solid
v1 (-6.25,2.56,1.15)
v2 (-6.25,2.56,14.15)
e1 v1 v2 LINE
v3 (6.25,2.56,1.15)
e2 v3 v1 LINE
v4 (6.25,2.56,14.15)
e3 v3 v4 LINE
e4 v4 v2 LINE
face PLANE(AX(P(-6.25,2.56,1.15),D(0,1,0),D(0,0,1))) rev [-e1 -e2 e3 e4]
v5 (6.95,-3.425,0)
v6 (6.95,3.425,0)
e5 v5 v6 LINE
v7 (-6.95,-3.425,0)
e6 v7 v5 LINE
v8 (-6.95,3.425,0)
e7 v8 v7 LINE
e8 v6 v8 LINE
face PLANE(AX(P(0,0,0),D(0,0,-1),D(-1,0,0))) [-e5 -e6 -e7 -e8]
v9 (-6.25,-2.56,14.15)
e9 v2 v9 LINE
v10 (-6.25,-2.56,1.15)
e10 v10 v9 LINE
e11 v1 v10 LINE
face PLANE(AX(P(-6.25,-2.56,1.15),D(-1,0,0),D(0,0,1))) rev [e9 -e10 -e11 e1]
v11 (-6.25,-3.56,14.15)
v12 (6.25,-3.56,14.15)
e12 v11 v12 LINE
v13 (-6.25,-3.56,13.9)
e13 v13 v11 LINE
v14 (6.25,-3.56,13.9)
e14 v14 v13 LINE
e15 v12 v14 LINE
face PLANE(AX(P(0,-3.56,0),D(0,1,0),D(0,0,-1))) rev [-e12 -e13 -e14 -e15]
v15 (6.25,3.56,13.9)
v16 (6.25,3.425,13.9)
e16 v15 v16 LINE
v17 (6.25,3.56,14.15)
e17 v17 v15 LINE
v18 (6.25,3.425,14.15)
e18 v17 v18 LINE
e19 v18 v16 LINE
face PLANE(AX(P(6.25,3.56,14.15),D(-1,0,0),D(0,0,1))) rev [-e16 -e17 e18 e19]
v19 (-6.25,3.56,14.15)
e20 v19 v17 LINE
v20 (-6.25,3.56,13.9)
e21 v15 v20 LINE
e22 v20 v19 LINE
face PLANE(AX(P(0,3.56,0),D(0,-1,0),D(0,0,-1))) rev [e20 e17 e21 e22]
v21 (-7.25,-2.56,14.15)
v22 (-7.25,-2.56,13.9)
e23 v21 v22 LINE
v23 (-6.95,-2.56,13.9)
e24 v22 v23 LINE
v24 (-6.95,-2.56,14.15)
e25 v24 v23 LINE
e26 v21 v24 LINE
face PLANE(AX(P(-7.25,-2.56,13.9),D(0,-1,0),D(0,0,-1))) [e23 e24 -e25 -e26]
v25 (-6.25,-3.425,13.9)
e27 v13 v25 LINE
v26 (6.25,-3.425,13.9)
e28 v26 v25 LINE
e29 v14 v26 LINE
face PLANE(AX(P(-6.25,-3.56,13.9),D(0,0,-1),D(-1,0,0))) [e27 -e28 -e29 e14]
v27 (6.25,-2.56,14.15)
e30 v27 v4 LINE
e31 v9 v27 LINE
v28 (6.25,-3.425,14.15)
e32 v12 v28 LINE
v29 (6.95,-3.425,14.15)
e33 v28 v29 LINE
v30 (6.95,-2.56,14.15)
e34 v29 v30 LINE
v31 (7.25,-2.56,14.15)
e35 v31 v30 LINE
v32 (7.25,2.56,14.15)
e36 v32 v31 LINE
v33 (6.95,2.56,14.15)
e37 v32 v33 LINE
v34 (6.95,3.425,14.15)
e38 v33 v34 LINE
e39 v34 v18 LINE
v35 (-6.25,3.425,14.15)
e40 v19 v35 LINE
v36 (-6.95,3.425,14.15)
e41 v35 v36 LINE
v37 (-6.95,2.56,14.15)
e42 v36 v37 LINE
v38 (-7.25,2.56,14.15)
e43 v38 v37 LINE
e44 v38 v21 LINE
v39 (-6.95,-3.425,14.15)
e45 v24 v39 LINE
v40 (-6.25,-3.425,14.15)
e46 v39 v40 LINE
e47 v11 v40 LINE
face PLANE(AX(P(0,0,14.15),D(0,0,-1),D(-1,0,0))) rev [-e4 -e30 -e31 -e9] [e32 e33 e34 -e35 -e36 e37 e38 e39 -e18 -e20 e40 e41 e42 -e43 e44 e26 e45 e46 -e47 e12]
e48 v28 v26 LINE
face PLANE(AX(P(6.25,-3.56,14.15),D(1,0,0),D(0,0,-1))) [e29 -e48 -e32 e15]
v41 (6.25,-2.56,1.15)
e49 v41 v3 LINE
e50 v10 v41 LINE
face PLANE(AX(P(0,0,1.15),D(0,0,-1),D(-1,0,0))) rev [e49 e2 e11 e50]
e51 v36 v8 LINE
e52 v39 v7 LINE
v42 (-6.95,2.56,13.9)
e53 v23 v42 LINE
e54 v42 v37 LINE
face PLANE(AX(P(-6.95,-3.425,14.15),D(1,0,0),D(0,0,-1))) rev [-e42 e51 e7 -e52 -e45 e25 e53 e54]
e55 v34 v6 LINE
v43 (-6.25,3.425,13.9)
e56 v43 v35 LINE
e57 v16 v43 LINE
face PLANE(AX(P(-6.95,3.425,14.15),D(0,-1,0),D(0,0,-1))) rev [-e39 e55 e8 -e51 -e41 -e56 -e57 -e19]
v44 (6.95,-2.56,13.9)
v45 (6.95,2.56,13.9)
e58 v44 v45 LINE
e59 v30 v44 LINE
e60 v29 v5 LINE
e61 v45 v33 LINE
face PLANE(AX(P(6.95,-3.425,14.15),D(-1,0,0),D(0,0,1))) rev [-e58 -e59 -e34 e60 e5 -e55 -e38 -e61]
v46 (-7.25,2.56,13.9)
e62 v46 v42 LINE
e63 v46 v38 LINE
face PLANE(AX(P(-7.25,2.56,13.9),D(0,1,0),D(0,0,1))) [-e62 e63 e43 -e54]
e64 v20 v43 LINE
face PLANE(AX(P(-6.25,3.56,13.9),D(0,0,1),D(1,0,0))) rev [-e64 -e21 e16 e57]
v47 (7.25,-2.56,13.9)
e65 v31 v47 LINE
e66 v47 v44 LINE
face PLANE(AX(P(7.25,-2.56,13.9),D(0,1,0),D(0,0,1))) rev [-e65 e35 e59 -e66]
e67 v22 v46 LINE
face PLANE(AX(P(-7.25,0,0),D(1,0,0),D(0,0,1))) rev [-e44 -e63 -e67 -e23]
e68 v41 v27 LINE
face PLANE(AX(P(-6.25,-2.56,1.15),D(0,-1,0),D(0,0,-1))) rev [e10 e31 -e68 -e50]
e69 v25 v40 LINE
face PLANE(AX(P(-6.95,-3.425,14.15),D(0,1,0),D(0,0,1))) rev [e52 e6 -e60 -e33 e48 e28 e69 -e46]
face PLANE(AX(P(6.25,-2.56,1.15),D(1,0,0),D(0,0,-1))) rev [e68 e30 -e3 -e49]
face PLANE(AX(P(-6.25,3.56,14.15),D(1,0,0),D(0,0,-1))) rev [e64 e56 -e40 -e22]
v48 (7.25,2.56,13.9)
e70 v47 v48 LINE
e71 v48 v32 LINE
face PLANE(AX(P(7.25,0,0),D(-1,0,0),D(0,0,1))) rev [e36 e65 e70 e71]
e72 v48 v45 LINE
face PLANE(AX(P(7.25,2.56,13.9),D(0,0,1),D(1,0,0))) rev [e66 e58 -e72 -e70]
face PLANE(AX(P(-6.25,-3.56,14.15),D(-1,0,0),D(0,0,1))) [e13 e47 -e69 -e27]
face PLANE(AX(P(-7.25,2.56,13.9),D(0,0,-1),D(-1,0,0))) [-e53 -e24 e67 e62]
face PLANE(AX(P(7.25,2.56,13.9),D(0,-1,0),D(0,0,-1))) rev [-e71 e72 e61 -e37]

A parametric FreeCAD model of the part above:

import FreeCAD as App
import Part
import Sketcher


def add_polygon(sketch, points):
    """Adds a closed chain of lines whose ends are joined by coincident constraints."""
    first, n = sketch.GeometryCount, len(points)
    for a, b in zip(points, points[1:] + points[:1]):
        sketch.addGeometry(Part.LineSegment(App.Vector(*a, 0), App.Vector(*b, 0)), False)
    for i in range(n):
        sketch.addConstraint(Sketcher.Constraint("Coincident", first + i, 2, first + (i + 1) % n, 1))

doc = App.newDocument("Part")
body = doc.addObject("PartDesign::Body", "Body")

sketch1 = body.newObject("Sketcher::SketchObject", "Sketch")
sketch1.AttachmentSupport = (doc.getObject("XY_Plane"), [""])
sketch1.MapMode = "FlatFace"
add_polygon(sketch1, [(-6.95, 3.425), (-6.95, -3.425), (6.95, -3.425), (6.95, 3.425)])
sketch1.addConstraint(Sketcher.Constraint("Vertical", 0))
sketch1.addConstraint(Sketcher.Constraint("Horizontal", 1))
sketch1.addConstraint(Sketcher.Constraint("Vertical", 2))
sketch1.addConstraint(Sketcher.Constraint("Horizontal", 3))
sketch1.addConstraint(Sketcher.Constraint("Symmetric", 0, 2, 2, 2, -1, 1))
sketch1.addConstraint(Sketcher.Constraint("DistanceX", 1, 1, 1, 2, 13.9))
sketch1.addConstraint(Sketcher.Constraint("DistanceY", 0, 2, 0, 1, 6.85))
pad1 = body.newObject("PartDesign::Pad", "Pad")
pad1.Profile = sketch1
pad1.Length = 14.15

sketch2 = body.newObject("Sketcher::SketchObject", "Sketch001")
sketch2.AttachmentSupport = (doc.getObject("XY_Plane"), [""])
sketch2.MapMode = "FlatFace"
sketch2.AttachmentOffset = App.Placement(App.Vector(0, 0, 14.15), App.Rotation())
add_polygon(sketch2, [(-6.25, 2.56), (-6.25, -2.56), (6.25, -2.56), (6.25, 2.56)])
sketch2.addConstraint(Sketcher.Constraint("Vertical", 0))
sketch2.addConstraint(Sketcher.Constraint("Horizontal", 1))
sketch2.addConstraint(Sketcher.Constraint("Vertical", 2))
sketch2.addConstraint(Sketcher.Constraint("Horizontal", 3))
sketch2.addConstraint(Sketcher.Constraint("Symmetric", 0, 2, 2, 2, -1, 1))
sketch2.addConstraint(Sketcher.Constraint("DistanceX", 1, 1, 1, 2, 12.5))
sketch2.addConstraint(Sketcher.Constraint("DistanceY", 0, 2, 0, 1, 5.12))
pocket1 = body.newObject("PartDesign::Pocket", "Pocket")
pocket1.Profile = sketch2
pocket1.Length = 13

sketch3 = body.newObject("Sketcher::SketchObject", "Sketch002")
sketch3.AttachmentSupport = (doc.getObject("XZ_Plane"), [""])
sketch3.MapMode = "FlatFace"
sketch3.AttachmentOffset = App.Placement(App.Vector(0, 0, -3.425), App.Rotation())
add_polygon(sketch3, [(-6.25, 13.9), (-6.25, 14.15), (6.25, 14.15), (6.25, 13.9)])
sketch3.addConstraint(Sketcher.Constraint("Vertical", 0))
sketch3.addConstraint(Sketcher.Constraint("Horizontal", 1))
sketch3.addConstraint(Sketcher.Constraint("Vertical", 2))
sketch3.addConstraint(Sketcher.Constraint("Horizontal", 3))
sketch3.addConstraint(Sketcher.Constraint("DistanceX", 1, 1, 1, 2, 12.5))
sketch3.addConstraint(Sketcher.Constraint("DistanceY", 0, 1, 0, 2, 0.25))
sketch3.addConstraint(Sketcher.Constraint("DistanceY", -1, 1, 2, 2, 13.9))
sketch3.addConstraint(Sketcher.Constraint("DistanceX", 0, 2, -1, 1, 6.25))
pad2 = body.newObject("PartDesign::Pad", "Pad001")
pad2.Profile = sketch3
pad2.Length = 0.135
pad2.Reversed = True
doc.recompute()

mirrored = body.newObject("PartDesign::Mirrored", "Mirrored")
mirrored.Originals = [pad2]
mirrored.MirrorPlane = (doc.getObject("XZ_Plane"), [""])
body.Tip = mirrored

sketch4 = body.newObject("Sketcher::SketchObject", "Sketch003")
sketch4.AttachmentSupport = (doc.getObject("YZ_Plane"), [""])
sketch4.MapMode = "FlatFace"
sketch4.AttachmentOffset = App.Placement(App.Vector(0, 0, 6.95), App.Rotation())
add_polygon(sketch4, [(2.56, 14.15), (-2.56, 14.15), (-2.56, 13.9), (2.56, 13.9)])
sketch4.addConstraint(Sketcher.Constraint("Horizontal", 0))
sketch4.addConstraint(Sketcher.Constraint("Vertical", 1))
sketch4.addConstraint(Sketcher.Constraint("Horizontal", 2))
sketch4.addConstraint(Sketcher.Constraint("Vertical", 3))
sketch4.addConstraint(Sketcher.Constraint("DistanceX", 0, 2, 0, 1, 5.12))
sketch4.addConstraint(Sketcher.Constraint("DistanceY", 1, 2, 1, 1, 0.25))
sketch4.addConstraint(Sketcher.Constraint("DistanceY", -1, 1, 1, 2, 13.9))
sketch4.addConstraint(Sketcher.Constraint("DistanceX", 0, 2, -1, 1, 2.56))
pad3 = body.newObject("PartDesign::Pad", "Pad002")
pad3.Profile = sketch4
pad3.Length = 0.3
doc.recompute()

mirrored2 = body.newObject("PartDesign::Mirrored", "Mirrored001")
mirrored2.Originals = [pad3]
mirrored2.MirrorPlane = (doc.getObject("YZ_Plane"), [""])
body.Tip = mirrored2

doc.recompute()
